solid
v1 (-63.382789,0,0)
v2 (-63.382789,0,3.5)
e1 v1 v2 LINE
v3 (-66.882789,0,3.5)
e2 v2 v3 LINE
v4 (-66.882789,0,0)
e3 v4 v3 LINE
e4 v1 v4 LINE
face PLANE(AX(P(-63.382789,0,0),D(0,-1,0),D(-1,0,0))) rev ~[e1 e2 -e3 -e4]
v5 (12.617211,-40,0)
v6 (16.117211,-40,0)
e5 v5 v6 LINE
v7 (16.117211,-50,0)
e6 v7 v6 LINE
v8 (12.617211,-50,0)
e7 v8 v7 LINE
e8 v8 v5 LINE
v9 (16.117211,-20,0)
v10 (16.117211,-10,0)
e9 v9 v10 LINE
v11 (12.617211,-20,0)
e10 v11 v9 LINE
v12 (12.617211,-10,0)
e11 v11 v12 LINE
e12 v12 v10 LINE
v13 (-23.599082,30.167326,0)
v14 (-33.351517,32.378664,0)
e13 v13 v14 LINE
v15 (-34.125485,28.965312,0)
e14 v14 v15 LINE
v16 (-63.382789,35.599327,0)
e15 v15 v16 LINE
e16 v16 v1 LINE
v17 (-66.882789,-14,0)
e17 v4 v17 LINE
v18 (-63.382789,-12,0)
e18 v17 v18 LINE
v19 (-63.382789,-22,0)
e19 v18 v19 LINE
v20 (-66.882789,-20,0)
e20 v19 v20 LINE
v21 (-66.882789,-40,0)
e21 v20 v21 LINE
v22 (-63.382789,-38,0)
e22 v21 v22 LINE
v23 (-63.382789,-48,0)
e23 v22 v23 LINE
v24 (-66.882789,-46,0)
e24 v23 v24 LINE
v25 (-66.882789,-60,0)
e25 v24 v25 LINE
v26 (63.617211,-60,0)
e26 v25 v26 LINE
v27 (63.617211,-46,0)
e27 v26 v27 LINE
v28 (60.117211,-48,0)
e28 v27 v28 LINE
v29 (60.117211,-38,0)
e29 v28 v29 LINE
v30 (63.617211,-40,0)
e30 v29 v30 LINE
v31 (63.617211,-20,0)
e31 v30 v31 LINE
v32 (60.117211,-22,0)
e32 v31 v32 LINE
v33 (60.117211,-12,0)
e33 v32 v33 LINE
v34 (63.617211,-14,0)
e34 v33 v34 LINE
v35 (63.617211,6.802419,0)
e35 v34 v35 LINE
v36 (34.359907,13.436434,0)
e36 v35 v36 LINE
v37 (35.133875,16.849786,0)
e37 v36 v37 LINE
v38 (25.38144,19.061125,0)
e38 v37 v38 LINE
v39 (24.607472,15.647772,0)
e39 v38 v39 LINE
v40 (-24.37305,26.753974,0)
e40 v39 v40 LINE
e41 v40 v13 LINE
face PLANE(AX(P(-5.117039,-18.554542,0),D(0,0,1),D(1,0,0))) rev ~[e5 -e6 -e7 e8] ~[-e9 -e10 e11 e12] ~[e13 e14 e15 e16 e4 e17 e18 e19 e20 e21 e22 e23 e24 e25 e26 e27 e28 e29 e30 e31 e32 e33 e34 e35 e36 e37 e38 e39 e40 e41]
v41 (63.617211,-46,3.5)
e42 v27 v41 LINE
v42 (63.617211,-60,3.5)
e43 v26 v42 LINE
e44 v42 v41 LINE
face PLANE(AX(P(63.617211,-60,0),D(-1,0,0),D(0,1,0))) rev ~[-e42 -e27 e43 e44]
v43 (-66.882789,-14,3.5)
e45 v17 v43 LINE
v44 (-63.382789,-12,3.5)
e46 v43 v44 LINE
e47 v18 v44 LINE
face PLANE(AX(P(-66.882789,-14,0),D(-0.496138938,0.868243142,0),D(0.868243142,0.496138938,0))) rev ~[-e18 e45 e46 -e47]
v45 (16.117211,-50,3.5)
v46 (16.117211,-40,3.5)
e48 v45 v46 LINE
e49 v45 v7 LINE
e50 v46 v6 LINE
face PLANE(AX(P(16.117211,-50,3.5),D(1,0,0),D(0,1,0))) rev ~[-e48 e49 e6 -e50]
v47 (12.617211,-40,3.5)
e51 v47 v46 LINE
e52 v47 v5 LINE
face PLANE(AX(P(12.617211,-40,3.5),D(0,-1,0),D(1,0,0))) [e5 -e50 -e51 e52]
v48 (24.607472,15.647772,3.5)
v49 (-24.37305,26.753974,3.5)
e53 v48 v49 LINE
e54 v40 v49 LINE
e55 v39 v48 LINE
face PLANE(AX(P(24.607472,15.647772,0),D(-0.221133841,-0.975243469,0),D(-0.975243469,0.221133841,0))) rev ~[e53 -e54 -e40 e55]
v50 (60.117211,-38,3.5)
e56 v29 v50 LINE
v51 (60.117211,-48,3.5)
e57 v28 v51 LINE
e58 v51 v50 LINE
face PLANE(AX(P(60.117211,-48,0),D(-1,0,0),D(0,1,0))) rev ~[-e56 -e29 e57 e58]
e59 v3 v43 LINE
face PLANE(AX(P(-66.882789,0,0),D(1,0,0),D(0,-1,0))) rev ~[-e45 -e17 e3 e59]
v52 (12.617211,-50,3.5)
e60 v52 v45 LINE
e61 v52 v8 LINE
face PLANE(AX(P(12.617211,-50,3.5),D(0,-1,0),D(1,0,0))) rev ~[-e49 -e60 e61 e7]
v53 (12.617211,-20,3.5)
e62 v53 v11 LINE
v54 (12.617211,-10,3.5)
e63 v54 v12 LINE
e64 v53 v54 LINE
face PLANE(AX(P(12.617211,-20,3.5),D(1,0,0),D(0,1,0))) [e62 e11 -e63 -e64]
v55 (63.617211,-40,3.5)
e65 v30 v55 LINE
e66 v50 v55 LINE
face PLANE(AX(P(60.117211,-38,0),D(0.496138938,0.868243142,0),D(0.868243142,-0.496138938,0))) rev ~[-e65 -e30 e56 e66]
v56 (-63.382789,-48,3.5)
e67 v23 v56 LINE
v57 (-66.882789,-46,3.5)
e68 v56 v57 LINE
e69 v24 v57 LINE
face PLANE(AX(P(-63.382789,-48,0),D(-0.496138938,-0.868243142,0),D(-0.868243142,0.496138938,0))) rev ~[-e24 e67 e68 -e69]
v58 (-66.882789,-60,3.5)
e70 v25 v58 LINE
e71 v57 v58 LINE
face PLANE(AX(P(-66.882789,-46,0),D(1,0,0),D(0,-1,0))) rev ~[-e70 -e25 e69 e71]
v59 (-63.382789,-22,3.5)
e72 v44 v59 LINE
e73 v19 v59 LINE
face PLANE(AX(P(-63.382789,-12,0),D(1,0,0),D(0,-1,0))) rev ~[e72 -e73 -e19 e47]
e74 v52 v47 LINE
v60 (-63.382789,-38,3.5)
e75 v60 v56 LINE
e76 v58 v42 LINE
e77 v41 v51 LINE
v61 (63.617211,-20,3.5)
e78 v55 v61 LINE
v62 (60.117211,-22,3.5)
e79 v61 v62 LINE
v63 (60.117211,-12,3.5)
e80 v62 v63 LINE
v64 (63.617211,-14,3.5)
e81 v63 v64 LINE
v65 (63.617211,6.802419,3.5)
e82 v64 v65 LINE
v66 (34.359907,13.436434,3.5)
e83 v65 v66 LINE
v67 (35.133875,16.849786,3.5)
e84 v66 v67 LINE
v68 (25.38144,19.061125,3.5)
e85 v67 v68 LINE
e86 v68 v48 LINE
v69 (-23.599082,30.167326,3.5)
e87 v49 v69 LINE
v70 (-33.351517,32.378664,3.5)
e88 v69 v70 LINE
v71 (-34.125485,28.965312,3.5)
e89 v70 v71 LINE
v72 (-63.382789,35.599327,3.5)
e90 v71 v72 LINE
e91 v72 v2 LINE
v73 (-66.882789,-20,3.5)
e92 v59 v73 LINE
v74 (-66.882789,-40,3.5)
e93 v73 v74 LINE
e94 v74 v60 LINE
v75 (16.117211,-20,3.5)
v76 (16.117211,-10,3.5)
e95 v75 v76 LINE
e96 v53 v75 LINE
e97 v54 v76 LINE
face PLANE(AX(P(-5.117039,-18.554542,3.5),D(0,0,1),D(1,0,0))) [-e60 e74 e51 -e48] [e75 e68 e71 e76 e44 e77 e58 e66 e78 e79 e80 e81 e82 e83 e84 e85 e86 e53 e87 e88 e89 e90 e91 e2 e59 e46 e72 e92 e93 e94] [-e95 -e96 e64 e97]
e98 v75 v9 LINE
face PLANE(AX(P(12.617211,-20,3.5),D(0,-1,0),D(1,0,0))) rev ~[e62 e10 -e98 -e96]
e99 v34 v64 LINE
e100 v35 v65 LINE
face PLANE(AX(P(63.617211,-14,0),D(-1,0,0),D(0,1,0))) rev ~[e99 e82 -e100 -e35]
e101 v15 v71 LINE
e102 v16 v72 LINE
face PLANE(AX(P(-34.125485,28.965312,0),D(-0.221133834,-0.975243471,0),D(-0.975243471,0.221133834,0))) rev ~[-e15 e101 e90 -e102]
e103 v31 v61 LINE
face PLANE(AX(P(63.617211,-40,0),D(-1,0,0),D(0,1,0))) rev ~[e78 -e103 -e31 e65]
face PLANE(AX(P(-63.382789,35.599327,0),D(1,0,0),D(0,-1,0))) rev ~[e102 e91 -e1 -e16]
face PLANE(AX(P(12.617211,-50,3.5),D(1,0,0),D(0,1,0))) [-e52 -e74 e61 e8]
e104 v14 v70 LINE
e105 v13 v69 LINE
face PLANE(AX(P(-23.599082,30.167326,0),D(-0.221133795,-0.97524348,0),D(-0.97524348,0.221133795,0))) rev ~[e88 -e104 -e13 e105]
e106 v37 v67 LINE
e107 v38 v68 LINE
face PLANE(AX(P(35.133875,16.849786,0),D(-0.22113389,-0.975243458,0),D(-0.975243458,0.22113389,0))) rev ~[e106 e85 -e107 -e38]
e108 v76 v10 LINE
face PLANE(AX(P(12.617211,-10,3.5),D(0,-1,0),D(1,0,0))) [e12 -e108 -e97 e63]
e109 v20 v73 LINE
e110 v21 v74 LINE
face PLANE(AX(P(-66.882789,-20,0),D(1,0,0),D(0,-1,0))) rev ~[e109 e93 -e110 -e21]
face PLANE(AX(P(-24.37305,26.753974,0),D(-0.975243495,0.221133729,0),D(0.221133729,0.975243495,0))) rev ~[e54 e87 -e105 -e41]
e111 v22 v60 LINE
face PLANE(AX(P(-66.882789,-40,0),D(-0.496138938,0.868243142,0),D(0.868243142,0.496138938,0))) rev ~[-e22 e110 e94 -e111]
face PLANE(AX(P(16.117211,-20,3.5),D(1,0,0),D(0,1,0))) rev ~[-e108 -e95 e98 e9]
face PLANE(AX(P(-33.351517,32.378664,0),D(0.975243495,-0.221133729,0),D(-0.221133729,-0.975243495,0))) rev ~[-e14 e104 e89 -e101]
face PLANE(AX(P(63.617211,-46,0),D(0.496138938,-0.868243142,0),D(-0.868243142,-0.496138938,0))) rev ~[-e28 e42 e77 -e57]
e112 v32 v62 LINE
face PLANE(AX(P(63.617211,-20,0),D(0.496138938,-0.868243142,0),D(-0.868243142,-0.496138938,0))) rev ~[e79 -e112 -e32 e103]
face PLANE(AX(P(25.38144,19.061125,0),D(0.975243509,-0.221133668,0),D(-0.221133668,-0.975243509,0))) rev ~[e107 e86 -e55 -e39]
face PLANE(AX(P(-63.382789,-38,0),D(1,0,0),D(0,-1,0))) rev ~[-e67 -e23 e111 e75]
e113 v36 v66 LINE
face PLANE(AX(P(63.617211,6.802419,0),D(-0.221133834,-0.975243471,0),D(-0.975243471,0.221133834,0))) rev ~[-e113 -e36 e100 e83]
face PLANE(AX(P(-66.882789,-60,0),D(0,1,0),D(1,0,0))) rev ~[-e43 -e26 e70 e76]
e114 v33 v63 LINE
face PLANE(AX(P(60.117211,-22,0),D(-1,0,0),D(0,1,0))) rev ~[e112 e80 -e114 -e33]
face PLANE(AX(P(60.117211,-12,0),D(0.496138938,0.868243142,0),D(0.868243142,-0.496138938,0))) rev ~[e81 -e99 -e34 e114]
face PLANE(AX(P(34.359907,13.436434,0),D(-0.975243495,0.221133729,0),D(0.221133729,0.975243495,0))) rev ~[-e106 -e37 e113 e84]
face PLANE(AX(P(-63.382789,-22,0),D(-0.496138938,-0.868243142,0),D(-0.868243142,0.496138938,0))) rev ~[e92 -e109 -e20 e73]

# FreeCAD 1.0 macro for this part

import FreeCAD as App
import Part
import Sketcher

V = App.Vector

doc = App.newDocument("Part")
body = doc.addObject("PartDesign::Body", "Body")

sketch1 = body.newObject("Sketcher::SketchObject", "Sketch")
sketch1.AttachmentSupport = (doc.getObject("XY_Plane"), [""])
sketch1.MapMode = "FlatFace"
sketch1.addGeometry([
    Part.LineSegment(V(63.6, -14, 0), V(63.6, 6.8, 0)),
    Part.LineSegment(V(63.6, 6.8, 0), V(34.4, 13.4, 0)),
    Part.LineSegment(V(34.4, 13.4, 0), V(35.1, 16.8, 0)),
    Part.LineSegment(V(35.1, 16.8, 0), V(25.4, 19.1, 0)),
    Part.LineSegment(V(25.4, 19.1, 0), V(24.6, 15.6, 0)),
    Part.LineSegment(V(24.6, 15.6, 0), V(-24.4, 26.8, 0)),
    Part.LineSegment(V(-24.4, 26.8, 0), V(-23.6, 30.2, 0)),
    Part.LineSegment(V(-23.6, 30.2, 0), V(-33.4, 32.4, 0)),
    Part.LineSegment(V(-33.4, 32.4, 0), V(-34.1, 29, 0)),
    Part.LineSegment(V(-34.1, 29, 0), V(-63.4, 35.6, 0)),
    Part.LineSegment(V(-63.4, 35.6, 0), V(-63.4, 0, 0)),
    Part.LineSegment(V(-63.4, 0, 0), V(-66.9, 0, 0)),
    Part.LineSegment(V(-66.9, 0, 0), V(-66.9, -14, 0)),
    Part.LineSegment(V(-66.9, -14, 0), V(-63.4, -12, 0)),
    Part.LineSegment(V(-63.4, -12, 0), V(-63.4, -22, 0)),
    Part.LineSegment(V(-63.4, -22, 0), V(-66.9, -20, 0)),
    Part.LineSegment(V(-66.9, -20, 0), V(-66.9, -40, 0)),
    Part.LineSegment(V(-66.9, -40, 0), V(-63.4, -38, 0)),
    Part.LineSegment(V(-63.4, -38, 0), V(-63.4, -48, 0)),
    Part.LineSegment(V(-63.4, -48, 0), V(-66.9, -46, 0)),
    Part.LineSegment(V(-66.9, -46, 0), V(-66.9, -60, 0)),
    Part.LineSegment(V(-66.9, -60, 0), V(63.6, -60, 0)),
    Part.LineSegment(V(63.6, -60, 0), V(63.6, -46, 0)),
    Part.LineSegment(V(63.6, -46, 0), V(60.1, -48, 0)),
    Part.LineSegment(V(60.1, -48, 0), V(60.1, -38, 0)),
    Part.LineSegment(V(60.1, -38, 0), V(63.6, -40, 0)),
    Part.LineSegment(V(63.6, -40, 0), V(63.6, -20, 0)),
    Part.LineSegment(V(63.6, -20, 0), V(60.1, -22, 0)),
    Part.LineSegment(V(60.1, -22, 0), V(60.1, -12, 0)),
    Part.LineSegment(V(60.1, -12, 0), V(63.6, -14, 0)),
], False)
sketch1.addConstraint([
    Sketcher.Constraint("Coincident", 0, 2, 1, 1),
    Sketcher.Constraint("Coincident", 1, 2, 2, 1),
    Sketcher.Constraint("Coincident", 2, 2, 3, 1),
    Sketcher.Constraint("Coincident", 3, 2, 4, 1),
    Sketcher.Constraint("Coincident", 4, 2, 5, 1),
    Sketcher.Constraint("Coincident", 5, 2, 6, 1),
    Sketcher.Constraint("Coincident", 6, 2, 7, 1),
    Sketcher.Constraint("Coincident", 7, 2, 8, 1),
    Sketcher.Constraint("Coincident", 8, 2, 9, 1),
    Sketcher.Constraint("Coincident", 9, 2, 10, 1),
    Sketcher.Constraint("Coincident", 10, 2, 11, 1),
    Sketcher.Constraint("Coincident", 11, 2, 12, 1),
    Sketcher.Constraint("Coincident", 12, 2, 13, 1),
    Sketcher.Constraint("Coincident", 13, 2, 14, 1),
    Sketcher.Constraint("Coincident", 14, 2, 15, 1),
    Sketcher.Constraint("Coincident", 15, 2, 16, 1),
    Sketcher.Constraint("Coincident", 16, 2, 17, 1),
    Sketcher.Constraint("Coincident", 17, 2, 18, 1),
    Sketcher.Constraint("Coincident", 18, 2, 19, 1),
    Sketcher.Constraint("Coincident", 19, 2, 20, 1),
    Sketcher.Constraint("Coincident", 20, 2, 21, 1),
    Sketcher.Constraint("Coincident", 21, 2, 22, 1),
    Sketcher.Constraint("Coincident", 22, 2, 23, 1),
    Sketcher.Constraint("Coincident", 23, 2, 24, 1),
    Sketcher.Constraint("Coincident", 24, 2, 25, 1),
    Sketcher.Constraint("Coincident", 25, 2, 26, 1),
    Sketcher.Constraint("Coincident", 26, 2, 27, 1),
    Sketcher.Constraint("Coincident", 27, 2, 28, 1),
    Sketcher.Constraint("Coincident", 28, 2, 29, 1),
    Sketcher.Constraint("Coincident", 29, 2, 0, 1),
    Sketcher.Constraint("Vertical", 0),
    Sketcher.Constraint("Vertical", 10),
    Sketcher.Constraint("Horizontal", 11),
    Sketcher.Constraint("Vertical", 12),
    Sketcher.Constraint("Vertical", 14),
    Sketcher.Constraint("Vertical", 16),
    Sketcher.Constraint("Vertical", 18),
    Sketcher.Constraint("Vertical", 20),
    Sketcher.Constraint("Horizontal", 21),
    Sketcher.Constraint("Vertical", 22),
    Sketcher.Constraint("Vertical", 24),
    Sketcher.Constraint("Vertical", 26),
    Sketcher.Constraint("Vertical", 28),
    Sketcher.Constraint("PointOnObject", 10, 2, -1),
    Sketcher.Constraint("Perpendicular", 1, 2),
    Sketcher.Constraint("Perpendicular", 2, 3),
    Sketcher.Constraint("Perpendicular", 3, 4),
    Sketcher.Constraint("Perpendicular", 4, 5),
    Sketcher.Constraint("Perpendicular", 5, 6),
    Sketcher.Constraint("Perpendicular", 6, 7),
    Sketcher.Constraint("Perpendicular", 7, 8),
    Sketcher.Constraint("Perpendicular", 8, 9),
    Sketcher.Constraint("Parallel", 13, 17),
    Sketcher.Constraint("Parallel", 15, 19),
    Sketcher.Constraint("Parallel", 17, 23),
    Sketcher.Constraint("Parallel", 19, 25),
    Sketcher.Constraint("Parallel", 23, 27),
    Sketcher.Constraint("Parallel", 25, 29),
    Sketcher.Constraint("Horizontal", 19, 2, 22, 2),
    Sketcher.Constraint("Horizontal", 18, 2, 23, 2),
    Sketcher.Constraint("Horizontal", 17, 2, 24, 2),
    Sketcher.Constraint("Horizontal", 16, 2, 25, 2),
    Sketcher.Constraint("Horizontal", 15, 2, 26, 2),
    Sketcher.Constraint("Horizontal", 14, 2, 27, 2),
    Sketcher.Constraint("Horizontal", 13, 2, 28, 2),
    Sketcher.Constraint("Horizontal", 12, 2, 29, 2),
    Sketcher.Constraint("Vertical", 10, 2, 13, 2),
    Sketcher.Constraint("Vertical", 12, 2, 15, 2),
    Sketcher.Constraint("Vertical", 14, 2, 17, 2),
    Sketcher.Constraint("Vertical", 16, 2, 19, 2),
    Sketcher.Constraint("Vertical", 0, 2, 21, 2),
    Sketcher.Constraint("Equal", 14, 18),
    Sketcher.Constraint("Equal", 12, 20),
    Sketcher.Constraint("Equal", 2, 4),
    Sketcher.Constraint("Equal", 4, 6),
    Sketcher.Constraint("Equal", 3, 7),
    Sketcher.Constraint("Equal", 6, 8),
    Sketcher.Constraint("Equal", 1, 9),
    Sketcher.Constraint("DistanceY", 12, 2, 12, 1, 14.0),
    Sketcher.Constraint("DistanceY", 14, 2, 14, 1, 10.0),
    Sketcher.Constraint("DistanceY", 16, 2, 16, 1, 20.0),
    Sketcher.Constraint("Distance", 1, 30.0),
    Sketcher.Constraint("Distance", 3, 10.0),
    Sketcher.Constraint("DistanceX", 11, 2, 11, 1, 3.5),
    Sketcher.Constraint("DistanceX", 21, 1, 21, 2, 130.5),
    Sketcher.Constraint("DistanceY", 13, 2, -1, 1, 12.0),
    Sketcher.Constraint("Distance", 2, 3.5),
    Sketcher.Constraint("DistanceY", 6, 2, 9, 2, 5.432001),
    Sketcher.Constraint("DistanceY", 0, 1, 0, 2, 20.802419),
    Sketcher.Constraint("DistanceX", -1, 1, 0, 2, 63.617211),
])
pad1 = body.newObject("PartDesign::Pad", "Pad")
pad1.Profile = sketch1
pad1.Length = 3.5

sketch2 = body.newObject("Sketcher::SketchObject", "Sketch001")
sketch2.AttachmentSupport = (doc.getObject("XY_Plane"), [""])
sketch2.MapMode = "FlatFace"
sketch2.AttachmentOffset = App.Placement(V(0, 0, 3.5), App.Rotation())
sketch2.addGeometry([
    Part.LineSegment(V(12.6, -10, 0), V(12.6, -20, 0)),
    Part.LineSegment(V(12.6, -20, 0), V(16.1, -20, 0)),
    Part.LineSegment(V(16.1, -20, 0), V(16.1, -10, 0)),
    Part.LineSegment(V(16.1, -10, 0), V(12.6, -10, 0)),
    Part.LineSegment(V(12.6, -40, 0), V(12.6, -50, 0)),
    Part.LineSegment(V(12.6, -50, 0), V(16.1, -50, 0)),
    Part.LineSegment(V(16.1, -50, 0), V(16.1, -40, 0)),
    Part.LineSegment(V(16.1, -40, 0), V(12.6, -40, 0)),
], False)
sketch2.addConstraint([
    Sketcher.Constraint("Coincident", 0, 2, 1, 1),
    Sketcher.Constraint("Coincident", 1, 2, 2, 1),
    Sketcher.Constraint("Coincident", 2, 2, 3, 1),
    Sketcher.Constraint("Coincident", 3, 2, 0, 1),
    Sketcher.Constraint("Coincident", 4, 2, 5, 1),
    Sketcher.Constraint("Coincident", 5, 2, 6, 1),
    Sketcher.Constraint("Coincident", 6, 2, 7, 1),
    Sketcher.Constraint("Coincident", 7, 2, 4, 1),
    Sketcher.Constraint("Vertical", 0),
    Sketcher.Constraint("Horizontal", 1),
    Sketcher.Constraint("Vertical", 2),
    Sketcher.Constraint("Horizontal", 3),
    Sketcher.Constraint("Vertical", 4),
    Sketcher.Constraint("Horizontal", 5),
    Sketcher.Constraint("Vertical", 6),
    Sketcher.Constraint("Horizontal", 7),
    Sketcher.Constraint("Vertical", 3, 2, 4, 2),
    Sketcher.Constraint("Vertical", 2, 2, 5, 2),
    Sketcher.Constraint("Equal", 2, 4),
    Sketcher.Constraint("DistanceY", 0, 2, 0, 1, 10.0),
    Sketcher.Constraint("DistanceX", 1, 1, 1, 2, 3.5),
    Sketcher.Constraint("DistanceY", 0, 2, -1, 1, 20.0),
    Sketcher.Constraint("DistanceY", 4, 2, -1, 1, 50.0),
    Sketcher.Constraint("DistanceX", -1, 1, 0, 2, 12.617211),
])
pocket1 = body.newObject("PartDesign::Pocket", "Pocket")
pocket1.Profile = sketch2
pocket1.Length = 3.5

doc.recompute()
